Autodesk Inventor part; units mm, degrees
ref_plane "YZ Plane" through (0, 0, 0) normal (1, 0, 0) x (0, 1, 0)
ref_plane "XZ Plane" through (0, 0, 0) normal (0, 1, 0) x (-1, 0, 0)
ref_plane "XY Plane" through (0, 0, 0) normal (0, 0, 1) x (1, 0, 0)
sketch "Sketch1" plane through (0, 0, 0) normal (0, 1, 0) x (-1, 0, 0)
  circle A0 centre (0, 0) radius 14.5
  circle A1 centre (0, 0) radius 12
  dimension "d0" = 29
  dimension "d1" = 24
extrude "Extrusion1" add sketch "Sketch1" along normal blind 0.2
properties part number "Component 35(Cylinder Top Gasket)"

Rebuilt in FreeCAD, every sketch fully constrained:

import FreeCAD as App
import Part
import Sketcher
from FreeCAD import Vector
Q = App.Units.Quantity

doc = App.newDocument("Part")
params = doc.addObject("Spreadsheet::Sheet", "Params")
for row, (alias, value) in enumerate([
    ("sketch1_diameter", "29 mm"),
    ("sketch1_diameter2", "24 mm"),
    ("pad1_length", "0.2 mm"),
], start=1):
    params.set(f"A{row}", alias)
    params.set(f"B{row}", "=" + value)
    params.setAlias(f"B{row}", alias)

body = doc.addObject("PartDesign::Body", "Body")

# Sketch on XZ plane
sketch1 = body.newObject("Sketcher::SketchObject", "Sketch")
sketch1.AttachmentSupport = (doc.getObject("XZ_Plane"), [""])
sketch1.MapMode = "FlatFace"
sketch1.addGeometry([
    Part.Circle(Vector(0, 0, 0), Vector(0, 0, 1), 14.5),
    Part.Circle(Vector(0, 0, 0), Vector(0, 0, 1), 12),
], False)
sketch1.addConstraint([
    Sketcher.Constraint("Coincident", 0, 3, -1, 1),
    Sketcher.Constraint("Coincident", 1, 3, -1, 1),
    Sketcher.Constraint("Diameter", 0, Q("29 mm")),
    Sketcher.Constraint("Diameter", 1, Q("24 mm")),
])
sketch1.setExpression("Constraints[2]", "Params.sketch1_diameter")
sketch1.setExpression("Constraints[3]", "Params.sketch1_diameter2")
pad1 = body.newObject("PartDesign::Pad", "Pad")
pad1.Profile = sketch1
pad1.setExpression("Length", "Params.pad1_length")
pad1.Reversed = True

doc.recompute()
